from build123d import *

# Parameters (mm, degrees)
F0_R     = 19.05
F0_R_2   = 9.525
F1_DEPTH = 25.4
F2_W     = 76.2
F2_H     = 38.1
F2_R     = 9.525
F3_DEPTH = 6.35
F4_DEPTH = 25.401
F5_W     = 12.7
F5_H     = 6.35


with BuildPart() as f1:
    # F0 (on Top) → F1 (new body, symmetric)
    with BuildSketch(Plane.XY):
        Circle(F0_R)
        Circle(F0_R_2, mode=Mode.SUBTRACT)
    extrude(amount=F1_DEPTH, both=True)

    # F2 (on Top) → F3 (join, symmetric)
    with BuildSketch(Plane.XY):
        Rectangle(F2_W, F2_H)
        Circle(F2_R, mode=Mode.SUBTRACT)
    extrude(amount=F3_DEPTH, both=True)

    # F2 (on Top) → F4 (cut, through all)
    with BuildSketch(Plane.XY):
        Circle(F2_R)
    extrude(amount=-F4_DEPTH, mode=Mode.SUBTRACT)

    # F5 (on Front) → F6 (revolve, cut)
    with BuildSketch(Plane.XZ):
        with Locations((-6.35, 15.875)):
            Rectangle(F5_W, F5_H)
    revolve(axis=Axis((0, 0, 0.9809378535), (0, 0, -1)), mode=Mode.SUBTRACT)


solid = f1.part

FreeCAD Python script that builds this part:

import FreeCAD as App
import Part
import Sketcher

V = App.Vector
Q = App.Units.Quantity


def add_polygon(sketch, points):
    """Adds a closed chain of lines whose ends are joined by coincident constraints."""
    first, n = sketch.GeometryCount, len(points)
    for a, b in zip(points, points[1:] + points[:1]):
        sketch.addGeometry(Part.LineSegment(App.Vector(*a, 0), App.Vector(*b, 0)), False)
    for i in range(n):
        sketch.addConstraint(Sketcher.Constraint("Coincident", first + i, 2, first + (i + 1) % n, 1))

doc = App.newDocument("Part")
body = doc.addObject("PartDesign::Body", "Body")

# Sketch on XY plane
sketch1 = doc.addObject("Sketcher::SketchObject", "Sketch")
body.addObject(sketch1)
sketch1.AttachmentSupport = (doc.XY_Plane, [""])
sketch1.MapMode = "FlatFace"
sketch1.addGeometry(Part.Circle(V(0, 0, 0), V(0, 0, 1), 19), False)
sketch1.addGeometry(Part.Circle(V(0, 0, 0), V(0, 0, 1), 10), False)
sketch1.addConstraint(Sketcher.Constraint("Coincident", 0, 3, -1, 1))
sketch1.addConstraint(Sketcher.Constraint("Coincident", 1, 3, -1, 1))
sketch1.addConstraint(Sketcher.Constraint("Diameter", 0, Q("1.5 in")))
sketch1.addConstraint(Sketcher.Constraint("Diameter", 1, Q("0.75 in")))
pad1 = doc.addObject("PartDesign::Pad", "Pad")
body.addObject(pad1)
pad1.Profile = sketch1
pad1.Length = Q("2 in")
pad1.Midplane = True

# Sketch on XY plane
sketch2 = doc.addObject("Sketcher::SketchObject", "Sketch001")
body.addObject(sketch2)
sketch2.AttachmentSupport = (doc.XY_Plane, [""])
sketch2.MapMode = "FlatFace"
add_polygon(sketch2, [(-38, 19), (-38, -19), (38, -19), (38, 19)])  # lines 0-3
sketch2.addGeometry(Part.Circle(V(0, 0, 0), V(0, 0, 1), 10), False)  # 4
sketch2.addConstraint(Sketcher.Constraint("Vertical", 0))
sketch2.addConstraint(Sketcher.Constraint("Horizontal", 1))
sketch2.addConstraint(Sketcher.Constraint("Vertical", 2))
sketch2.addConstraint(Sketcher.Constraint("Horizontal", 3))
sketch2.addConstraint(Sketcher.Constraint("Coincident", 4, 3, -1, 1))
sketch2.addConstraint(Sketcher.Constraint("Symmetric", 0, 2, 2, 2, -1, 1))
sketch2.addConstraint(Sketcher.Constraint("Diameter", 4, Q("0.75 in")))
sketch2.addConstraint(Sketcher.Constraint("DistanceX", 1, 1, 1, 2, Q("3 in")))
sketch2.addConstraint(Sketcher.Constraint("DistanceY", 0, 2, 0, 1, Q("1.5 in")))
pad2 = doc.addObject("PartDesign::Pad", "Pad001")
body.addObject(pad2)
pad2.Profile = sketch2
pad2.Length = Q("0.5 in")
pad2.Midplane = True

# Sketch on XY plane
sketch3 = doc.addObject("Sketcher::SketchObject", "Sketch002")
body.addObject(sketch3)
sketch3.AttachmentSupport = (doc.XY_Plane, [""])
sketch3.MapMode = "FlatFace"
sketch3.addGeometry(Part.Circle(V(0, 0, 0), V(0, 0, 1), 10), False)
sketch3.addConstraint(Sketcher.Constraint("Coincident", 0, 3, -1, 1))
sketch3.addConstraint(Sketcher.Constraint("Diameter", 0, Q("0.75 in")))
pocket1 = doc.addObject("PartDesign::Pocket", "Pocket")
body.addObject(pocket1)
pocket1.Profile = sketch3
pocket1.Type = "ThroughAll"

# Sketch on XZ plane
sketch4 = doc.addObject("Sketcher::SketchObject", "Sketch003")
body.addObject(sketch4)
sketch4.AttachmentSupport = (doc.XZ_Plane, [""])
sketch4.MapMode = "FlatFace"
add_polygon(sketch4, [(-13, 19), (-13, 13), (0, 13), (0, 19)])  # lines 0-3
sketch4.addConstraint(Sketcher.Constraint("Vertical", 0))
sketch4.addConstraint(Sketcher.Constraint("Horizontal", 1))
sketch4.addConstraint(Sketcher.Constraint("Vertical", 2))
sketch4.addConstraint(Sketcher.Constraint("Horizontal", 3))
sketch4.addConstraint(Sketcher.Constraint("PointOnObject", 1, 2, -2))
sketch4.addConstraint(Sketcher.Constraint("DistanceX", 1, 1, 1, 2, Q("0.5 in")))
sketch4.addConstraint(Sketcher.Constraint("DistanceY", 0, 2, 0, 1, Q("0.25 in")))
sketch4.addConstraint(Sketcher.Constraint("DistanceY", -1, 1, 0, 2, Q("0.5 in")))
groove = doc.addObject("PartDesign::Groove", "Groove")
body.addObject(groove)
groove.Profile = sketch4
groove.ReferenceAxis = (sketch4, ["V_Axis"])
groove.Angle = 360

doc.recompute()
